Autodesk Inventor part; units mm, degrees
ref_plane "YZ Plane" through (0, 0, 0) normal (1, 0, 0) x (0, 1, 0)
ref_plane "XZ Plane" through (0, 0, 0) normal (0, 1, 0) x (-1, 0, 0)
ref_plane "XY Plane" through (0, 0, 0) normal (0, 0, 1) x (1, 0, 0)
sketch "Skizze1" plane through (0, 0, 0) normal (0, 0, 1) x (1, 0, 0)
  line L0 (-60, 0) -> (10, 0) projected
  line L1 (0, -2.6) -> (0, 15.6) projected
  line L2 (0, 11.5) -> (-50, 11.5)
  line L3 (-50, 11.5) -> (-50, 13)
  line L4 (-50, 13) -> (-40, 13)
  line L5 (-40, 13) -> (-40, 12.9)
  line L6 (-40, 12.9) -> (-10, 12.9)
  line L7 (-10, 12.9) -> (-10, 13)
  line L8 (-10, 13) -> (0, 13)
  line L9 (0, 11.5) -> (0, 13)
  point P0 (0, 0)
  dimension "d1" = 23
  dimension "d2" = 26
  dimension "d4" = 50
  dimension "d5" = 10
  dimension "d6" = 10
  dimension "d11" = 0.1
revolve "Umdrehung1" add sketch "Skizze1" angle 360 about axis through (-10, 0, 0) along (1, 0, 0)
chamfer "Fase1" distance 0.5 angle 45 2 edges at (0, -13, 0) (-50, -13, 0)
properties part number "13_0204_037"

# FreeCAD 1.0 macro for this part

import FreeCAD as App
import Part
import Sketcher
from FreeCAD import Vector


def edges_at(feature, points):
    """Names of the edges that pass closest to the given points."""
    edges = feature.Shape.Edges
    near = lambda p: min(range(len(edges)), key=lambda i: edges[i].distToShape(Part.Vertex(*p))[0])
    return sorted({f"Edge{near(p) + 1}" for p in points})


def add_polygon(sketch, points):
    """Adds a closed chain of lines whose ends are joined by coincident constraints."""
    first, n = sketch.GeometryCount, len(points)
    for a, b in zip(points, points[1:] + points[:1]):
        sketch.addGeometry(Part.LineSegment(App.Vector(*a, 0), App.Vector(*b, 0)), False)
    for i in range(n):
        sketch.addConstraint(Sketcher.Constraint("Coincident", first + i, 2, first + (i + 1) % n, 1))

doc = App.newDocument("Part")
body = doc.addObject("PartDesign::Body", "Body")

# Sketch on XY plane
sketch1 = body.newObject("Sketcher::SketchObject", "Sketch")
sketch1.AttachmentSupport = (doc.getObject("XY_Plane"), [""])
sketch1.MapMode = "FlatFace"
add_polygon(sketch1, [(-50, 11.5), (0, 11.5), (0, 13), (-10, 13), (-10, 12.9), (-40, 12.9), (-40, 13), (-50, 13)])  # lines 0-7
sketch1.addConstraint(Sketcher.Constraint("Horizontal", 0))
sketch1.addConstraint(Sketcher.Constraint("Vertical", 1))
sketch1.addConstraint(Sketcher.Constraint("Horizontal", 2))
sketch1.addConstraint(Sketcher.Constraint("Vertical", 3))
sketch1.addConstraint(Sketcher.Constraint("Horizontal", 4))
sketch1.addConstraint(Sketcher.Constraint("Vertical", 5))
sketch1.addConstraint(Sketcher.Constraint("Horizontal", 6))
sketch1.addConstraint(Sketcher.Constraint("Vertical", 7))
sketch1.addConstraint(Sketcher.Constraint("PointOnObject", 0, 2, -2))
sketch1.addConstraint(Sketcher.Constraint("Horizontal", 2, 2, 5, 2))
sketch1.addConstraint(Sketcher.Constraint("Equal", 2, 6))
sketch1.addConstraint(Sketcher.Constraint("DistanceX", 0, 1, 0, 2, 50.0))
sketch1.addConstraint(Sketcher.Constraint("DistanceX", 2, 2, 2, 1, 10.0))
sketch1.addConstraint(Sketcher.Constraint("DistanceY", 3, 2, 3, 1, 0.1))
sketch1.addConstraint(Sketcher.Constraint("DistanceY", 1, 1, 1, 2, 1.5))
sketch1.addConstraint(Sketcher.Constraint("DistanceY", -1, 1, 1, 2, 13.0))
revolution = body.newObject("PartDesign::Revolution", "Revolution")
revolution.Profile = sketch1
revolution.ReferenceAxis = (sketch1, ["H_Axis"])
revolution.Angle = 360
doc.recompute()

chamfer = body.newObject("PartDesign::Chamfer", "Chamfer")
chamfer.Base = (revolution, edges_at(revolution, [(0, -13, 0), (-50, -13, 0)]))
chamfer.Size = 0.5

doc.recompute()
